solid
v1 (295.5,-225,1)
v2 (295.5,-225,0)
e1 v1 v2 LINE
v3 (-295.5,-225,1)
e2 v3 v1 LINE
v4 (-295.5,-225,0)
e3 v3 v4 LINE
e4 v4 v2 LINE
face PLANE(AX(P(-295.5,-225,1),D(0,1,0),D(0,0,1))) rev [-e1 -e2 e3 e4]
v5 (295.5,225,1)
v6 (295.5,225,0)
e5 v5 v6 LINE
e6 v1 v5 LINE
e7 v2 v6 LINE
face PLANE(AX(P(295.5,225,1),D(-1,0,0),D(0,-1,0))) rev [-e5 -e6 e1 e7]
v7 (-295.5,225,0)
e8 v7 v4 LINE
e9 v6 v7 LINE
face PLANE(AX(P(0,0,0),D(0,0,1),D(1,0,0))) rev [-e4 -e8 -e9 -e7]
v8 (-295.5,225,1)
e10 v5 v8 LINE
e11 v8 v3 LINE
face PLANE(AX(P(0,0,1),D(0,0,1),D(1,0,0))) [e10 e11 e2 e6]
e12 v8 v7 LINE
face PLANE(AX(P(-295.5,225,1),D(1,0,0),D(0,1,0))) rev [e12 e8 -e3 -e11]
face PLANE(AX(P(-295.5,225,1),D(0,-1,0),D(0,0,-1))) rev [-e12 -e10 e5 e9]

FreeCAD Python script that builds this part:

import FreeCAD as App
import Part
import Sketcher
Q = App.Units.Quantity

doc = App.newDocument("Part")
body = doc.addObject("PartDesign::Body", "Body")

# Sketch on XY plane
sketch1 = doc.addObject("Sketcher::SketchObject", "Sketch")
body.addObject(sketch1)
sketch1.AttachmentSupport = (doc.XY_Plane, [""])
sketch1.MapMode = "FlatFace"
sketch1.addGeometry([
    Part.LineSegment(App.Vector(-296, 225, 0), App.Vector(-296, -225, 0)),
    Part.LineSegment(App.Vector(-296, -225, 0), App.Vector(296, -225, 0)),
    Part.LineSegment(App.Vector(296, -225, 0), App.Vector(296, 225, 0)),
    Part.LineSegment(App.Vector(296, 225, 0), App.Vector(-296, 225, 0)),
], False)
sketch1.addConstraint([
    Sketcher.Constraint("Coincident", 0, 2, 1, 1),
    Sketcher.Constraint("Coincident", 1, 2, 2, 1),
    Sketcher.Constraint("Coincident", 2, 2, 3, 1),
    Sketcher.Constraint("Coincident", 3, 2, 0, 1),
    Sketcher.Constraint("Vertical", 0),
    Sketcher.Constraint("Horizontal", 1),
    Sketcher.Constraint("Vertical", 2),
    Sketcher.Constraint("Horizontal", 3),
    Sketcher.Constraint("Symmetric", 0, 2, 2, 2, -1, 1),
    Sketcher.Constraint("DistanceX", 1, 1, 1, 2, Q("591 mm")),
    Sketcher.Constraint("DistanceY", 0, 2, 0, 1, Q("450 mm")),
])
pad1 = doc.addObject("PartDesign::Pad", "Pad")
body.addObject(pad1)
pad1.Profile = sketch1
pad1.Length = 1

doc.recompute()
